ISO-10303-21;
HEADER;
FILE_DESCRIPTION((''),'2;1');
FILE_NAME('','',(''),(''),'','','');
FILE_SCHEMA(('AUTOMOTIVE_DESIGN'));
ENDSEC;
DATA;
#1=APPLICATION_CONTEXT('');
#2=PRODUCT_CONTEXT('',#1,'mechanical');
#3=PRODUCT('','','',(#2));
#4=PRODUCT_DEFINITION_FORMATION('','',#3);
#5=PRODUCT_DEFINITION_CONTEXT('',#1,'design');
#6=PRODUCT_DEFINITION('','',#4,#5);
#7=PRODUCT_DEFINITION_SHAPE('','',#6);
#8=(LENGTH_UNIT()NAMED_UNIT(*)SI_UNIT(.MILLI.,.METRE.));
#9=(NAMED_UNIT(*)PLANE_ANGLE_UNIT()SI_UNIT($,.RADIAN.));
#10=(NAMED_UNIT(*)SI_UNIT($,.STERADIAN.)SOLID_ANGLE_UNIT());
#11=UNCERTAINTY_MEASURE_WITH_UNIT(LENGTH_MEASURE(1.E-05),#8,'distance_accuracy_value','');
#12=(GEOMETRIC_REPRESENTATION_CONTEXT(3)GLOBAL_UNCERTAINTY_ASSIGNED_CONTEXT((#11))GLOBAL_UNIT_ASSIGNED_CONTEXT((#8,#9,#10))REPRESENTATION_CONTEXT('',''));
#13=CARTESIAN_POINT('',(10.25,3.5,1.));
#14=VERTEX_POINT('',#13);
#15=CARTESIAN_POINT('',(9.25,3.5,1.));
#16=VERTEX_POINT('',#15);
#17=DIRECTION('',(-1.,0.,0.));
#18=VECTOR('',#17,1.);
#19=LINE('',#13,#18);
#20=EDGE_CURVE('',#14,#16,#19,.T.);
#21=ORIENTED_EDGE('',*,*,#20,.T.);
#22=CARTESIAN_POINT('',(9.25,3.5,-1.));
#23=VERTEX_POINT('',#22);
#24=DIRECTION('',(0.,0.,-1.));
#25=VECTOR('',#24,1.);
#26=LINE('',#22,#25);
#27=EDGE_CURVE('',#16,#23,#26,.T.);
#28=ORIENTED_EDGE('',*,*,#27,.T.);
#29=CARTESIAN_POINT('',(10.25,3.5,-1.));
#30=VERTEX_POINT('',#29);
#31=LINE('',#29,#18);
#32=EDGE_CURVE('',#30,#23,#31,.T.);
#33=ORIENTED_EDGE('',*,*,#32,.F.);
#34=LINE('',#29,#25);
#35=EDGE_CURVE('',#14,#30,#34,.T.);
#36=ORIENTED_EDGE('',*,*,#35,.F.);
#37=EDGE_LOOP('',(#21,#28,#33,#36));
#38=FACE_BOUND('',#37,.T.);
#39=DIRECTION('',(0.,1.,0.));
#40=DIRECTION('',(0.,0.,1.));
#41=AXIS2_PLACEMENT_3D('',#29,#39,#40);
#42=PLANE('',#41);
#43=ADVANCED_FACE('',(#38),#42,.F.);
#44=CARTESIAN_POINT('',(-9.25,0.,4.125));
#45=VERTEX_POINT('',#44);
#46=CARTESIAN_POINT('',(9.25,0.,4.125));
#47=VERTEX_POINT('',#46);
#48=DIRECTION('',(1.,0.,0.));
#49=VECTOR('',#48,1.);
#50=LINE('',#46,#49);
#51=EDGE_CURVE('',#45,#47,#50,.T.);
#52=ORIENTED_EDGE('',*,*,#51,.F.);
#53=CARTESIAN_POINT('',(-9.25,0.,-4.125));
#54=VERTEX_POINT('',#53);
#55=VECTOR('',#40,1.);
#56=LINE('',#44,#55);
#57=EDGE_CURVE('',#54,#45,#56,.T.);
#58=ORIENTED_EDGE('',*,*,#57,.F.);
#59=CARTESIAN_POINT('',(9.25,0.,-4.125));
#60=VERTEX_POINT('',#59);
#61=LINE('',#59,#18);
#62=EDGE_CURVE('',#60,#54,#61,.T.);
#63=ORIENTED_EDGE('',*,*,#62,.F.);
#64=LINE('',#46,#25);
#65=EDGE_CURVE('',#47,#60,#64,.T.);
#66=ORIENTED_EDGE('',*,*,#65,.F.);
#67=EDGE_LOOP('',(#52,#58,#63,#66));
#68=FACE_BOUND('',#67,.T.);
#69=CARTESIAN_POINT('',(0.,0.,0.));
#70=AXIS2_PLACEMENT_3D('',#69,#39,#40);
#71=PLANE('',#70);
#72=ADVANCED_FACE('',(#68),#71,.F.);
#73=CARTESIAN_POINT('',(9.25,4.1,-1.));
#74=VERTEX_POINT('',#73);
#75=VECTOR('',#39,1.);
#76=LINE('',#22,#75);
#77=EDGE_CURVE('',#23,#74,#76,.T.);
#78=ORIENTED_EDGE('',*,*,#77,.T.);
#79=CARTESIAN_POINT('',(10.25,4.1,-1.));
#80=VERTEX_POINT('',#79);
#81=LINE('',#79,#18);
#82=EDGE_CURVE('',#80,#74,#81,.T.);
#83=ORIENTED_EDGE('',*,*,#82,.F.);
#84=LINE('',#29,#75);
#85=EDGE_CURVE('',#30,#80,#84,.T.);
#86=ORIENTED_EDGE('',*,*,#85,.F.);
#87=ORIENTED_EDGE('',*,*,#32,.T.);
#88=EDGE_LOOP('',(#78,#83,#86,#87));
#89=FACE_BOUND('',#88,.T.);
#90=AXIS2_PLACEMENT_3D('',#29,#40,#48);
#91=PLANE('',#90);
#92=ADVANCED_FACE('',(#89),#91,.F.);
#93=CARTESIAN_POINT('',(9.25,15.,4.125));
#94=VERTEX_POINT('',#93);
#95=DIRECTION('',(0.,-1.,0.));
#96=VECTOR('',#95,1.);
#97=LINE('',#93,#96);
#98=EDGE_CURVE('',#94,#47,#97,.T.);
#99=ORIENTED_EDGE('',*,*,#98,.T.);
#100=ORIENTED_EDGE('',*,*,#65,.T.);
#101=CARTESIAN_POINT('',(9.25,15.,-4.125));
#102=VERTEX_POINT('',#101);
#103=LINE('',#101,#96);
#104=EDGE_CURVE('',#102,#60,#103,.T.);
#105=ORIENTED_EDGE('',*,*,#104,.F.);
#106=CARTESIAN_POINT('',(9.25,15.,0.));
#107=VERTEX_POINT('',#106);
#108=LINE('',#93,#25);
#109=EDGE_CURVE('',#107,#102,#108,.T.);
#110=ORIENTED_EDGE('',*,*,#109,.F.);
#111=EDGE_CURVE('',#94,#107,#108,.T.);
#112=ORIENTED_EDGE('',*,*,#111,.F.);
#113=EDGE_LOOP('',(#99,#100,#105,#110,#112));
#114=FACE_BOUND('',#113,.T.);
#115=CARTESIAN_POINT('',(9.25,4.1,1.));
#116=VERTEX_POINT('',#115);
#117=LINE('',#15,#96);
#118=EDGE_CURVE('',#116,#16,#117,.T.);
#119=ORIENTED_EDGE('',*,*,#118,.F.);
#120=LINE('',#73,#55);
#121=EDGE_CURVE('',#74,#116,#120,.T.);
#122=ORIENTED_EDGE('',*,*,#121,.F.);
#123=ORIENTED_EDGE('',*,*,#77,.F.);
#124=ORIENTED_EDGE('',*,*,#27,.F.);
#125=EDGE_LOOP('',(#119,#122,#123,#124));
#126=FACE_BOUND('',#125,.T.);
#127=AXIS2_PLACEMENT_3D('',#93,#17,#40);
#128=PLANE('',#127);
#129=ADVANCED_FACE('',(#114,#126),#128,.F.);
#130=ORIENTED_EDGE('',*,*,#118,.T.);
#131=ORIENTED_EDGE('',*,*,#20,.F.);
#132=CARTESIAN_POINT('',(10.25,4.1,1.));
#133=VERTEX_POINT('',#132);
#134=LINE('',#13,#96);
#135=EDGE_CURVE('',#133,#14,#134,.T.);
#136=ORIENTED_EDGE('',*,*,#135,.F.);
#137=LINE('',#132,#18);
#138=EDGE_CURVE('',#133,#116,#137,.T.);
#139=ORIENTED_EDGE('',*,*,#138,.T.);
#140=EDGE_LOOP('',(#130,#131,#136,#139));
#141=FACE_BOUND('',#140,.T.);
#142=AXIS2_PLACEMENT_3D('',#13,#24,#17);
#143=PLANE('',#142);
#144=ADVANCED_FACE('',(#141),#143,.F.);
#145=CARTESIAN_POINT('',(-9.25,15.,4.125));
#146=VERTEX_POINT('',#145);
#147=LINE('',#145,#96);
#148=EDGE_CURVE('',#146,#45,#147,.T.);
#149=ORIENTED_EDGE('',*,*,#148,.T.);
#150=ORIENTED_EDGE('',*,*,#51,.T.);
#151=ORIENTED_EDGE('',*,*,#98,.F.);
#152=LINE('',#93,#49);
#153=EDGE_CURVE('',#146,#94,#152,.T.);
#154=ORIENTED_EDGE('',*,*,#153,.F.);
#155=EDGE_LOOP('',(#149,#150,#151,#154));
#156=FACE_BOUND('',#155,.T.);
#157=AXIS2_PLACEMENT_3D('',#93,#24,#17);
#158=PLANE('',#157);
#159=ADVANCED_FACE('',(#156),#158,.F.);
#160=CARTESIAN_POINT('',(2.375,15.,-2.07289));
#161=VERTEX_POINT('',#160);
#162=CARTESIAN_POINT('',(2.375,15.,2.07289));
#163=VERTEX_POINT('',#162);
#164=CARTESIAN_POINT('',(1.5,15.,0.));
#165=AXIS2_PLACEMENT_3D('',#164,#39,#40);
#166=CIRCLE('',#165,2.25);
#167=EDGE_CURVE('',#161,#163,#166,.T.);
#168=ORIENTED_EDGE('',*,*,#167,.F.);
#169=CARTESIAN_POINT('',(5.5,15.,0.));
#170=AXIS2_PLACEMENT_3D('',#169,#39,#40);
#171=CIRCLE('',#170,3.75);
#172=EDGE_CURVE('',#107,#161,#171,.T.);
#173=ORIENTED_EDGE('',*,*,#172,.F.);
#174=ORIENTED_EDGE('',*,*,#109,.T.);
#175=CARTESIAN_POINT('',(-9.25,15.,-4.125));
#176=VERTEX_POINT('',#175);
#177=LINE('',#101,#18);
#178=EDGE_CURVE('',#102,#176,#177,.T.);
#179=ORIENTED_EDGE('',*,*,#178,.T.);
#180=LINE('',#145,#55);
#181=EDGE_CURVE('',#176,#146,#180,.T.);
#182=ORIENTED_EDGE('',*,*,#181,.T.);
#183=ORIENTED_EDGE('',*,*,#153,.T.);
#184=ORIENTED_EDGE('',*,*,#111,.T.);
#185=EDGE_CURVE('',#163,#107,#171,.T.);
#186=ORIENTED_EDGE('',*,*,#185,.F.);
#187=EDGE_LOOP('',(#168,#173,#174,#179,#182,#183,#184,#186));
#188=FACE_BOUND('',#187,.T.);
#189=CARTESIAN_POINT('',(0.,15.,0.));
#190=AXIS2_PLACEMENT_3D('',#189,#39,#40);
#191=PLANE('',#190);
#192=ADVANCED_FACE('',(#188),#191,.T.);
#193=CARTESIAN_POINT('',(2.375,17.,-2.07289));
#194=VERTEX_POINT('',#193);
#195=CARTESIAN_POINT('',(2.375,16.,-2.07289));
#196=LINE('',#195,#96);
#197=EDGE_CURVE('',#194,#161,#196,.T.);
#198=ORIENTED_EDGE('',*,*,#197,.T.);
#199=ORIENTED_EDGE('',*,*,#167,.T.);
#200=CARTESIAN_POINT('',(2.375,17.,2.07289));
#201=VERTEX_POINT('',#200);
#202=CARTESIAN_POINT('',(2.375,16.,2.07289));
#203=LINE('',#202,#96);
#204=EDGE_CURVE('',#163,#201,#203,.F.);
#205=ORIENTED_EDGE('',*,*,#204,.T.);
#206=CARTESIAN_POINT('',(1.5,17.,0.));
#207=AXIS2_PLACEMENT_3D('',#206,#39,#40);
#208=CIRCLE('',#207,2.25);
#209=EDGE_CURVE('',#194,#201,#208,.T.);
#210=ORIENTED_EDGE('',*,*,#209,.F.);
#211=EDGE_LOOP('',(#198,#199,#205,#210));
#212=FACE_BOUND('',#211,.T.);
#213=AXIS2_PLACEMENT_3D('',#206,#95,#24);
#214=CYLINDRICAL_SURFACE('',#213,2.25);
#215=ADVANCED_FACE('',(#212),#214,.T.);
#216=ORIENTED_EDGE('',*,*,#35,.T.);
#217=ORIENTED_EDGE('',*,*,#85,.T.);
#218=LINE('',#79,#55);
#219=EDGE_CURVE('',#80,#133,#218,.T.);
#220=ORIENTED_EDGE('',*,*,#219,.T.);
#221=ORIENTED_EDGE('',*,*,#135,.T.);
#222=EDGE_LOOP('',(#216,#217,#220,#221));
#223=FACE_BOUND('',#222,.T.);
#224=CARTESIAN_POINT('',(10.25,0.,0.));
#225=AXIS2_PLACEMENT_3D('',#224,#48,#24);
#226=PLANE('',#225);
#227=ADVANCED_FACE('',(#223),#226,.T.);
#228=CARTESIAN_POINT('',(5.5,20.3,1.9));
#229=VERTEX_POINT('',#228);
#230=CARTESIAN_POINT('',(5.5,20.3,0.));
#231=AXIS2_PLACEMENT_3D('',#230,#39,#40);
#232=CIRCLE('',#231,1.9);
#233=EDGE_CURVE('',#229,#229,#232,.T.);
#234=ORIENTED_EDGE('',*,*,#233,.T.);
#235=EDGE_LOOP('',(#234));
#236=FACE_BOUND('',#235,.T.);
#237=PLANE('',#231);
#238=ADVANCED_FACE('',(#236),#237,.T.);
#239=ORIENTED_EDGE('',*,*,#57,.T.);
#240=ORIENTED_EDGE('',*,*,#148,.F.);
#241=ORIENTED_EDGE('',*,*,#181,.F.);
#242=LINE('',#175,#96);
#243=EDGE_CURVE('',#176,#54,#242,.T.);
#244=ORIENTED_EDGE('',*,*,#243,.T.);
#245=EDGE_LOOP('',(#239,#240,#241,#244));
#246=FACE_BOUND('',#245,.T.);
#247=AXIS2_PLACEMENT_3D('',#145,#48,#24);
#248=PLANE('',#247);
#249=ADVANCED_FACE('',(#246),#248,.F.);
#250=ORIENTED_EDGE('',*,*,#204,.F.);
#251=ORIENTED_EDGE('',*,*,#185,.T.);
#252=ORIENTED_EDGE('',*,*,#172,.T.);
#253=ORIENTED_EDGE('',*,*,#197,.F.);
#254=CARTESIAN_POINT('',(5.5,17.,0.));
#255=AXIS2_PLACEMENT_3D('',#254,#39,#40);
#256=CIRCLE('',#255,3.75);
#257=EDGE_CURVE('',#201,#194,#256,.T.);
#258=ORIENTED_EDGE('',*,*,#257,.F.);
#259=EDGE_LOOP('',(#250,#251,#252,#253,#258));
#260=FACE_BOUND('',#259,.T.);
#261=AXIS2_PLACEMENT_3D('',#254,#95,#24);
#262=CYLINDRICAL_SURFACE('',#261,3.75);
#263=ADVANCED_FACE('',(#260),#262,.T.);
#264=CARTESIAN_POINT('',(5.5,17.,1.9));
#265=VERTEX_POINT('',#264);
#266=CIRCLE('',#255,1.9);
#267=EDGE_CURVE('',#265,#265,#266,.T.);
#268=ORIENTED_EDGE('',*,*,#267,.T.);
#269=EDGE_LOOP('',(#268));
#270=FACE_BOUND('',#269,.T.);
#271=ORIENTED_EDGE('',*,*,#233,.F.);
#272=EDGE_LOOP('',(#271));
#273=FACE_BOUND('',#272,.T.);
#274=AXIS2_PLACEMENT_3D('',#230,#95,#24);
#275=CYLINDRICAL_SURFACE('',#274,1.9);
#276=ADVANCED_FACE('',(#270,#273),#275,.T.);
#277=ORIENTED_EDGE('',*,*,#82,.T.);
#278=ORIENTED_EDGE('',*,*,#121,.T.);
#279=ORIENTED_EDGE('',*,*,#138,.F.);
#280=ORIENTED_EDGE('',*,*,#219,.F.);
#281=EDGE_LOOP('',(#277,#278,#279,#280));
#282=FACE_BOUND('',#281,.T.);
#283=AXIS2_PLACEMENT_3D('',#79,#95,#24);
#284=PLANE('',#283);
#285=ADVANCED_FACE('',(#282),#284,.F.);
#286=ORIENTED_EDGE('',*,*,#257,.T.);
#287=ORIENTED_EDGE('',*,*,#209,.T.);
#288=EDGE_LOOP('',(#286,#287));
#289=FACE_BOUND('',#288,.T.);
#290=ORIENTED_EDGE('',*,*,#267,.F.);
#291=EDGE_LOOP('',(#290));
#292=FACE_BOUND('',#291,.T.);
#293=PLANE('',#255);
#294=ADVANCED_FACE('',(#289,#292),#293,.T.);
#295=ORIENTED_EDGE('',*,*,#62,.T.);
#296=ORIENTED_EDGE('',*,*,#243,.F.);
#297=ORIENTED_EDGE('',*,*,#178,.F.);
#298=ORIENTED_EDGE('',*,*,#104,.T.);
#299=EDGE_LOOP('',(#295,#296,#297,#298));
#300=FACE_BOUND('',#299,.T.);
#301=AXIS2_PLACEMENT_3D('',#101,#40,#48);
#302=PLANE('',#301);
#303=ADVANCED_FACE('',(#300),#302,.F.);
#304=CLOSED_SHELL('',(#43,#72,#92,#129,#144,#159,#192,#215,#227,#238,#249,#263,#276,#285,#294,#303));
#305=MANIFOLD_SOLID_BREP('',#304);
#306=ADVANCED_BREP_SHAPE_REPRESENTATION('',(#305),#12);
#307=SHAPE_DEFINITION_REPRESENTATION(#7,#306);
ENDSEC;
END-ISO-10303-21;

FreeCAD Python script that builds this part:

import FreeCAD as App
import Part
import Sketcher
from FreeCAD import Vector
Q = App.Units.Quantity


def add_polygon(sketch, points):
    """Adds a closed chain of lines whose ends are joined by coincident constraints."""
    first, n = sketch.GeometryCount, len(points)
    for a, b in zip(points, points[1:] + points[:1]):
        sketch.addGeometry(Part.LineSegment(App.Vector(*a, 0), App.Vector(*b, 0)), False)
    for i in range(n):
        sketch.addConstraint(Sketcher.Constraint("Coincident", first + i, 2, first + (i + 1) % n, 1))

doc = App.newDocument("Part")
body = doc.addObject("PartDesign::Body", "Body")

# Sketch on XZ plane
sketch1 = doc.addObject("Sketcher::SketchObject", "Sketch")
body.addObject(sketch1)
sketch1.AttachmentSupport = (doc.XZ_Plane, [""])
sketch1.MapMode = "FlatFace"
add_polygon(sketch1, [(-9, -4), (-9, 4), (9, 4), (9, -4)])  # lines 0-3
sketch1.addConstraint(Sketcher.Constraint("Vertical", 0))
sketch1.addConstraint(Sketcher.Constraint("Horizontal", 1))
sketch1.addConstraint(Sketcher.Constraint("Vertical", 2))
sketch1.addConstraint(Sketcher.Constraint("Horizontal", 3))
sketch1.addConstraint(Sketcher.Constraint("Symmetric", 0, 2, 2, 2, -1, 1))
sketch1.addConstraint(Sketcher.Constraint("DistanceX", 1, 1, 1, 2, Q("18.5 mm")))
sketch1.addConstraint(Sketcher.Constraint("DistanceY", 0, 1, 0, 2, Q("8.25 mm")))
pad1 = doc.addObject("PartDesign::Pad", "Pad")
body.addObject(pad1)
pad1.Profile = sketch1
pad1.Length = 15
pad1.Reversed = True

# Sketch on XZ plane
sketch2 = doc.addObject("Sketcher::SketchObject", "Sketch001")
body.addObject(sketch2)
sketch2.AttachmentSupport = (doc.XZ_Plane, [""])
sketch2.MapMode = "FlatFace"
sketch2.AttachmentOffset = App.Placement(Vector(0, 0, -15), App.Rotation())
sketch2.addGeometry(Part.Circle(Vector(5.5, 0, 0), Vector(0, 0, 1), 3.8), False)
sketch2.addConstraint(Sketcher.Constraint("PointOnObject", 0, 3, -1))
sketch2.addConstraint(Sketcher.Constraint("Diameter", 0, Q("7.5 mm")))
sketch2.addConstraint(Sketcher.Constraint("DistanceX", -1, 1, 0, 3, Q("5.5 mm")))
pad2 = doc.addObject("PartDesign::Pad", "Pad001")
body.addObject(pad2)
pad2.Profile = sketch2
pad2.Length = 2
pad2.Reversed = True

# Sketch on XZ plane
sketch3 = doc.addObject("Sketcher::SketchObject", "Sketch002")
body.addObject(sketch3)
sketch3.AttachmentSupport = (doc.XZ_Plane, [""])
sketch3.MapMode = "FlatFace"
sketch3.AttachmentOffset = App.Placement(Vector(0, 0, -15), App.Rotation())
sketch3.addGeometry(Part.Circle(Vector(1.5, 0, 0), Vector(0, 0, 1), 2.2), False)
sketch3.addConstraint(Sketcher.Constraint("PointOnObject", 0, 3, -1))
sketch3.addConstraint(Sketcher.Constraint("Diameter", 0, Q("4.5 mm")))
sketch3.addConstraint(Sketcher.Constraint("DistanceX", -1, 1, 0, 3, Q("1.5 mm")))
pad3 = doc.addObject("PartDesign::Pad", "Pad002")
body.addObject(pad3)
pad3.Profile = sketch3
pad3.Length = 2
pad3.Reversed = True

# Sketch on XZ plane
sketch4 = doc.addObject("Sketcher::SketchObject", "Sketch003")
body.addObject(sketch4)
sketch4.AttachmentSupport = (doc.XZ_Plane, [""])
sketch4.MapMode = "FlatFace"
sketch4.AttachmentOffset = App.Placement(Vector(0, 0, -17), App.Rotation())
sketch4.addGeometry(Part.Circle(Vector(5.5, 0, 0), Vector(0, 0, 1), 1.9), False)
sketch4.addConstraint(Sketcher.Constraint("PointOnObject", 0, 3, -1))
sketch4.addConstraint(Sketcher.Constraint("Diameter", 0, Q("3.8 mm")))
sketch4.addConstraint(Sketcher.Constraint("DistanceX", -1, 1, 0, 3, Q("5.5 mm")))
pad4 = doc.addObject("PartDesign::Pad", "Pad003")
body.addObject(pad4)
pad4.Profile = sketch4
pad4.Length = 3.3
pad4.Reversed = True

# Sketch on YZ plane
sketch5 = doc.addObject("Sketcher::SketchObject", "Sketch004")
body.addObject(sketch5)
sketch5.AttachmentSupport = (doc.YZ_Plane, [""])
sketch5.MapMode = "FlatFace"
sketch5.AttachmentOffset = App.Placement(Vector(0, 0, 9.25), App.Rotation())
add_polygon(sketch5, [(4.1, 1), (3.5, 1), (3.5, -1), (4.1, -1)])  # lines 0-3
sketch5.addConstraint(Sketcher.Constraint("Horizontal", 0))
sketch5.addConstraint(Sketcher.Constraint("Vertical", 1))
sketch5.addConstraint(Sketcher.Constraint("Horizontal", 2))
sketch5.addConstraint(Sketcher.Constraint("Vertical", 3))
sketch5.addConstraint(Sketcher.Constraint("DistanceY", 1, 2, 1, 1, Q("2 mm")))
sketch5.addConstraint(Sketcher.Constraint("DistanceX", 0, 2, 0, 1, Q("0.6 mm")))
sketch5.addConstraint(Sketcher.Constraint("DistanceY", -1, 1, 0, 2, Q("1 mm")))
sketch5.addConstraint(Sketcher.Constraint("DistanceX", -1, 1, 0, 2, Q("3.5 mm")))
pad5 = doc.addObject("PartDesign::Pad", "Pad004")
body.addObject(pad5)
pad5.Profile = sketch5
pad5.Length = 1

doc.recompute()
